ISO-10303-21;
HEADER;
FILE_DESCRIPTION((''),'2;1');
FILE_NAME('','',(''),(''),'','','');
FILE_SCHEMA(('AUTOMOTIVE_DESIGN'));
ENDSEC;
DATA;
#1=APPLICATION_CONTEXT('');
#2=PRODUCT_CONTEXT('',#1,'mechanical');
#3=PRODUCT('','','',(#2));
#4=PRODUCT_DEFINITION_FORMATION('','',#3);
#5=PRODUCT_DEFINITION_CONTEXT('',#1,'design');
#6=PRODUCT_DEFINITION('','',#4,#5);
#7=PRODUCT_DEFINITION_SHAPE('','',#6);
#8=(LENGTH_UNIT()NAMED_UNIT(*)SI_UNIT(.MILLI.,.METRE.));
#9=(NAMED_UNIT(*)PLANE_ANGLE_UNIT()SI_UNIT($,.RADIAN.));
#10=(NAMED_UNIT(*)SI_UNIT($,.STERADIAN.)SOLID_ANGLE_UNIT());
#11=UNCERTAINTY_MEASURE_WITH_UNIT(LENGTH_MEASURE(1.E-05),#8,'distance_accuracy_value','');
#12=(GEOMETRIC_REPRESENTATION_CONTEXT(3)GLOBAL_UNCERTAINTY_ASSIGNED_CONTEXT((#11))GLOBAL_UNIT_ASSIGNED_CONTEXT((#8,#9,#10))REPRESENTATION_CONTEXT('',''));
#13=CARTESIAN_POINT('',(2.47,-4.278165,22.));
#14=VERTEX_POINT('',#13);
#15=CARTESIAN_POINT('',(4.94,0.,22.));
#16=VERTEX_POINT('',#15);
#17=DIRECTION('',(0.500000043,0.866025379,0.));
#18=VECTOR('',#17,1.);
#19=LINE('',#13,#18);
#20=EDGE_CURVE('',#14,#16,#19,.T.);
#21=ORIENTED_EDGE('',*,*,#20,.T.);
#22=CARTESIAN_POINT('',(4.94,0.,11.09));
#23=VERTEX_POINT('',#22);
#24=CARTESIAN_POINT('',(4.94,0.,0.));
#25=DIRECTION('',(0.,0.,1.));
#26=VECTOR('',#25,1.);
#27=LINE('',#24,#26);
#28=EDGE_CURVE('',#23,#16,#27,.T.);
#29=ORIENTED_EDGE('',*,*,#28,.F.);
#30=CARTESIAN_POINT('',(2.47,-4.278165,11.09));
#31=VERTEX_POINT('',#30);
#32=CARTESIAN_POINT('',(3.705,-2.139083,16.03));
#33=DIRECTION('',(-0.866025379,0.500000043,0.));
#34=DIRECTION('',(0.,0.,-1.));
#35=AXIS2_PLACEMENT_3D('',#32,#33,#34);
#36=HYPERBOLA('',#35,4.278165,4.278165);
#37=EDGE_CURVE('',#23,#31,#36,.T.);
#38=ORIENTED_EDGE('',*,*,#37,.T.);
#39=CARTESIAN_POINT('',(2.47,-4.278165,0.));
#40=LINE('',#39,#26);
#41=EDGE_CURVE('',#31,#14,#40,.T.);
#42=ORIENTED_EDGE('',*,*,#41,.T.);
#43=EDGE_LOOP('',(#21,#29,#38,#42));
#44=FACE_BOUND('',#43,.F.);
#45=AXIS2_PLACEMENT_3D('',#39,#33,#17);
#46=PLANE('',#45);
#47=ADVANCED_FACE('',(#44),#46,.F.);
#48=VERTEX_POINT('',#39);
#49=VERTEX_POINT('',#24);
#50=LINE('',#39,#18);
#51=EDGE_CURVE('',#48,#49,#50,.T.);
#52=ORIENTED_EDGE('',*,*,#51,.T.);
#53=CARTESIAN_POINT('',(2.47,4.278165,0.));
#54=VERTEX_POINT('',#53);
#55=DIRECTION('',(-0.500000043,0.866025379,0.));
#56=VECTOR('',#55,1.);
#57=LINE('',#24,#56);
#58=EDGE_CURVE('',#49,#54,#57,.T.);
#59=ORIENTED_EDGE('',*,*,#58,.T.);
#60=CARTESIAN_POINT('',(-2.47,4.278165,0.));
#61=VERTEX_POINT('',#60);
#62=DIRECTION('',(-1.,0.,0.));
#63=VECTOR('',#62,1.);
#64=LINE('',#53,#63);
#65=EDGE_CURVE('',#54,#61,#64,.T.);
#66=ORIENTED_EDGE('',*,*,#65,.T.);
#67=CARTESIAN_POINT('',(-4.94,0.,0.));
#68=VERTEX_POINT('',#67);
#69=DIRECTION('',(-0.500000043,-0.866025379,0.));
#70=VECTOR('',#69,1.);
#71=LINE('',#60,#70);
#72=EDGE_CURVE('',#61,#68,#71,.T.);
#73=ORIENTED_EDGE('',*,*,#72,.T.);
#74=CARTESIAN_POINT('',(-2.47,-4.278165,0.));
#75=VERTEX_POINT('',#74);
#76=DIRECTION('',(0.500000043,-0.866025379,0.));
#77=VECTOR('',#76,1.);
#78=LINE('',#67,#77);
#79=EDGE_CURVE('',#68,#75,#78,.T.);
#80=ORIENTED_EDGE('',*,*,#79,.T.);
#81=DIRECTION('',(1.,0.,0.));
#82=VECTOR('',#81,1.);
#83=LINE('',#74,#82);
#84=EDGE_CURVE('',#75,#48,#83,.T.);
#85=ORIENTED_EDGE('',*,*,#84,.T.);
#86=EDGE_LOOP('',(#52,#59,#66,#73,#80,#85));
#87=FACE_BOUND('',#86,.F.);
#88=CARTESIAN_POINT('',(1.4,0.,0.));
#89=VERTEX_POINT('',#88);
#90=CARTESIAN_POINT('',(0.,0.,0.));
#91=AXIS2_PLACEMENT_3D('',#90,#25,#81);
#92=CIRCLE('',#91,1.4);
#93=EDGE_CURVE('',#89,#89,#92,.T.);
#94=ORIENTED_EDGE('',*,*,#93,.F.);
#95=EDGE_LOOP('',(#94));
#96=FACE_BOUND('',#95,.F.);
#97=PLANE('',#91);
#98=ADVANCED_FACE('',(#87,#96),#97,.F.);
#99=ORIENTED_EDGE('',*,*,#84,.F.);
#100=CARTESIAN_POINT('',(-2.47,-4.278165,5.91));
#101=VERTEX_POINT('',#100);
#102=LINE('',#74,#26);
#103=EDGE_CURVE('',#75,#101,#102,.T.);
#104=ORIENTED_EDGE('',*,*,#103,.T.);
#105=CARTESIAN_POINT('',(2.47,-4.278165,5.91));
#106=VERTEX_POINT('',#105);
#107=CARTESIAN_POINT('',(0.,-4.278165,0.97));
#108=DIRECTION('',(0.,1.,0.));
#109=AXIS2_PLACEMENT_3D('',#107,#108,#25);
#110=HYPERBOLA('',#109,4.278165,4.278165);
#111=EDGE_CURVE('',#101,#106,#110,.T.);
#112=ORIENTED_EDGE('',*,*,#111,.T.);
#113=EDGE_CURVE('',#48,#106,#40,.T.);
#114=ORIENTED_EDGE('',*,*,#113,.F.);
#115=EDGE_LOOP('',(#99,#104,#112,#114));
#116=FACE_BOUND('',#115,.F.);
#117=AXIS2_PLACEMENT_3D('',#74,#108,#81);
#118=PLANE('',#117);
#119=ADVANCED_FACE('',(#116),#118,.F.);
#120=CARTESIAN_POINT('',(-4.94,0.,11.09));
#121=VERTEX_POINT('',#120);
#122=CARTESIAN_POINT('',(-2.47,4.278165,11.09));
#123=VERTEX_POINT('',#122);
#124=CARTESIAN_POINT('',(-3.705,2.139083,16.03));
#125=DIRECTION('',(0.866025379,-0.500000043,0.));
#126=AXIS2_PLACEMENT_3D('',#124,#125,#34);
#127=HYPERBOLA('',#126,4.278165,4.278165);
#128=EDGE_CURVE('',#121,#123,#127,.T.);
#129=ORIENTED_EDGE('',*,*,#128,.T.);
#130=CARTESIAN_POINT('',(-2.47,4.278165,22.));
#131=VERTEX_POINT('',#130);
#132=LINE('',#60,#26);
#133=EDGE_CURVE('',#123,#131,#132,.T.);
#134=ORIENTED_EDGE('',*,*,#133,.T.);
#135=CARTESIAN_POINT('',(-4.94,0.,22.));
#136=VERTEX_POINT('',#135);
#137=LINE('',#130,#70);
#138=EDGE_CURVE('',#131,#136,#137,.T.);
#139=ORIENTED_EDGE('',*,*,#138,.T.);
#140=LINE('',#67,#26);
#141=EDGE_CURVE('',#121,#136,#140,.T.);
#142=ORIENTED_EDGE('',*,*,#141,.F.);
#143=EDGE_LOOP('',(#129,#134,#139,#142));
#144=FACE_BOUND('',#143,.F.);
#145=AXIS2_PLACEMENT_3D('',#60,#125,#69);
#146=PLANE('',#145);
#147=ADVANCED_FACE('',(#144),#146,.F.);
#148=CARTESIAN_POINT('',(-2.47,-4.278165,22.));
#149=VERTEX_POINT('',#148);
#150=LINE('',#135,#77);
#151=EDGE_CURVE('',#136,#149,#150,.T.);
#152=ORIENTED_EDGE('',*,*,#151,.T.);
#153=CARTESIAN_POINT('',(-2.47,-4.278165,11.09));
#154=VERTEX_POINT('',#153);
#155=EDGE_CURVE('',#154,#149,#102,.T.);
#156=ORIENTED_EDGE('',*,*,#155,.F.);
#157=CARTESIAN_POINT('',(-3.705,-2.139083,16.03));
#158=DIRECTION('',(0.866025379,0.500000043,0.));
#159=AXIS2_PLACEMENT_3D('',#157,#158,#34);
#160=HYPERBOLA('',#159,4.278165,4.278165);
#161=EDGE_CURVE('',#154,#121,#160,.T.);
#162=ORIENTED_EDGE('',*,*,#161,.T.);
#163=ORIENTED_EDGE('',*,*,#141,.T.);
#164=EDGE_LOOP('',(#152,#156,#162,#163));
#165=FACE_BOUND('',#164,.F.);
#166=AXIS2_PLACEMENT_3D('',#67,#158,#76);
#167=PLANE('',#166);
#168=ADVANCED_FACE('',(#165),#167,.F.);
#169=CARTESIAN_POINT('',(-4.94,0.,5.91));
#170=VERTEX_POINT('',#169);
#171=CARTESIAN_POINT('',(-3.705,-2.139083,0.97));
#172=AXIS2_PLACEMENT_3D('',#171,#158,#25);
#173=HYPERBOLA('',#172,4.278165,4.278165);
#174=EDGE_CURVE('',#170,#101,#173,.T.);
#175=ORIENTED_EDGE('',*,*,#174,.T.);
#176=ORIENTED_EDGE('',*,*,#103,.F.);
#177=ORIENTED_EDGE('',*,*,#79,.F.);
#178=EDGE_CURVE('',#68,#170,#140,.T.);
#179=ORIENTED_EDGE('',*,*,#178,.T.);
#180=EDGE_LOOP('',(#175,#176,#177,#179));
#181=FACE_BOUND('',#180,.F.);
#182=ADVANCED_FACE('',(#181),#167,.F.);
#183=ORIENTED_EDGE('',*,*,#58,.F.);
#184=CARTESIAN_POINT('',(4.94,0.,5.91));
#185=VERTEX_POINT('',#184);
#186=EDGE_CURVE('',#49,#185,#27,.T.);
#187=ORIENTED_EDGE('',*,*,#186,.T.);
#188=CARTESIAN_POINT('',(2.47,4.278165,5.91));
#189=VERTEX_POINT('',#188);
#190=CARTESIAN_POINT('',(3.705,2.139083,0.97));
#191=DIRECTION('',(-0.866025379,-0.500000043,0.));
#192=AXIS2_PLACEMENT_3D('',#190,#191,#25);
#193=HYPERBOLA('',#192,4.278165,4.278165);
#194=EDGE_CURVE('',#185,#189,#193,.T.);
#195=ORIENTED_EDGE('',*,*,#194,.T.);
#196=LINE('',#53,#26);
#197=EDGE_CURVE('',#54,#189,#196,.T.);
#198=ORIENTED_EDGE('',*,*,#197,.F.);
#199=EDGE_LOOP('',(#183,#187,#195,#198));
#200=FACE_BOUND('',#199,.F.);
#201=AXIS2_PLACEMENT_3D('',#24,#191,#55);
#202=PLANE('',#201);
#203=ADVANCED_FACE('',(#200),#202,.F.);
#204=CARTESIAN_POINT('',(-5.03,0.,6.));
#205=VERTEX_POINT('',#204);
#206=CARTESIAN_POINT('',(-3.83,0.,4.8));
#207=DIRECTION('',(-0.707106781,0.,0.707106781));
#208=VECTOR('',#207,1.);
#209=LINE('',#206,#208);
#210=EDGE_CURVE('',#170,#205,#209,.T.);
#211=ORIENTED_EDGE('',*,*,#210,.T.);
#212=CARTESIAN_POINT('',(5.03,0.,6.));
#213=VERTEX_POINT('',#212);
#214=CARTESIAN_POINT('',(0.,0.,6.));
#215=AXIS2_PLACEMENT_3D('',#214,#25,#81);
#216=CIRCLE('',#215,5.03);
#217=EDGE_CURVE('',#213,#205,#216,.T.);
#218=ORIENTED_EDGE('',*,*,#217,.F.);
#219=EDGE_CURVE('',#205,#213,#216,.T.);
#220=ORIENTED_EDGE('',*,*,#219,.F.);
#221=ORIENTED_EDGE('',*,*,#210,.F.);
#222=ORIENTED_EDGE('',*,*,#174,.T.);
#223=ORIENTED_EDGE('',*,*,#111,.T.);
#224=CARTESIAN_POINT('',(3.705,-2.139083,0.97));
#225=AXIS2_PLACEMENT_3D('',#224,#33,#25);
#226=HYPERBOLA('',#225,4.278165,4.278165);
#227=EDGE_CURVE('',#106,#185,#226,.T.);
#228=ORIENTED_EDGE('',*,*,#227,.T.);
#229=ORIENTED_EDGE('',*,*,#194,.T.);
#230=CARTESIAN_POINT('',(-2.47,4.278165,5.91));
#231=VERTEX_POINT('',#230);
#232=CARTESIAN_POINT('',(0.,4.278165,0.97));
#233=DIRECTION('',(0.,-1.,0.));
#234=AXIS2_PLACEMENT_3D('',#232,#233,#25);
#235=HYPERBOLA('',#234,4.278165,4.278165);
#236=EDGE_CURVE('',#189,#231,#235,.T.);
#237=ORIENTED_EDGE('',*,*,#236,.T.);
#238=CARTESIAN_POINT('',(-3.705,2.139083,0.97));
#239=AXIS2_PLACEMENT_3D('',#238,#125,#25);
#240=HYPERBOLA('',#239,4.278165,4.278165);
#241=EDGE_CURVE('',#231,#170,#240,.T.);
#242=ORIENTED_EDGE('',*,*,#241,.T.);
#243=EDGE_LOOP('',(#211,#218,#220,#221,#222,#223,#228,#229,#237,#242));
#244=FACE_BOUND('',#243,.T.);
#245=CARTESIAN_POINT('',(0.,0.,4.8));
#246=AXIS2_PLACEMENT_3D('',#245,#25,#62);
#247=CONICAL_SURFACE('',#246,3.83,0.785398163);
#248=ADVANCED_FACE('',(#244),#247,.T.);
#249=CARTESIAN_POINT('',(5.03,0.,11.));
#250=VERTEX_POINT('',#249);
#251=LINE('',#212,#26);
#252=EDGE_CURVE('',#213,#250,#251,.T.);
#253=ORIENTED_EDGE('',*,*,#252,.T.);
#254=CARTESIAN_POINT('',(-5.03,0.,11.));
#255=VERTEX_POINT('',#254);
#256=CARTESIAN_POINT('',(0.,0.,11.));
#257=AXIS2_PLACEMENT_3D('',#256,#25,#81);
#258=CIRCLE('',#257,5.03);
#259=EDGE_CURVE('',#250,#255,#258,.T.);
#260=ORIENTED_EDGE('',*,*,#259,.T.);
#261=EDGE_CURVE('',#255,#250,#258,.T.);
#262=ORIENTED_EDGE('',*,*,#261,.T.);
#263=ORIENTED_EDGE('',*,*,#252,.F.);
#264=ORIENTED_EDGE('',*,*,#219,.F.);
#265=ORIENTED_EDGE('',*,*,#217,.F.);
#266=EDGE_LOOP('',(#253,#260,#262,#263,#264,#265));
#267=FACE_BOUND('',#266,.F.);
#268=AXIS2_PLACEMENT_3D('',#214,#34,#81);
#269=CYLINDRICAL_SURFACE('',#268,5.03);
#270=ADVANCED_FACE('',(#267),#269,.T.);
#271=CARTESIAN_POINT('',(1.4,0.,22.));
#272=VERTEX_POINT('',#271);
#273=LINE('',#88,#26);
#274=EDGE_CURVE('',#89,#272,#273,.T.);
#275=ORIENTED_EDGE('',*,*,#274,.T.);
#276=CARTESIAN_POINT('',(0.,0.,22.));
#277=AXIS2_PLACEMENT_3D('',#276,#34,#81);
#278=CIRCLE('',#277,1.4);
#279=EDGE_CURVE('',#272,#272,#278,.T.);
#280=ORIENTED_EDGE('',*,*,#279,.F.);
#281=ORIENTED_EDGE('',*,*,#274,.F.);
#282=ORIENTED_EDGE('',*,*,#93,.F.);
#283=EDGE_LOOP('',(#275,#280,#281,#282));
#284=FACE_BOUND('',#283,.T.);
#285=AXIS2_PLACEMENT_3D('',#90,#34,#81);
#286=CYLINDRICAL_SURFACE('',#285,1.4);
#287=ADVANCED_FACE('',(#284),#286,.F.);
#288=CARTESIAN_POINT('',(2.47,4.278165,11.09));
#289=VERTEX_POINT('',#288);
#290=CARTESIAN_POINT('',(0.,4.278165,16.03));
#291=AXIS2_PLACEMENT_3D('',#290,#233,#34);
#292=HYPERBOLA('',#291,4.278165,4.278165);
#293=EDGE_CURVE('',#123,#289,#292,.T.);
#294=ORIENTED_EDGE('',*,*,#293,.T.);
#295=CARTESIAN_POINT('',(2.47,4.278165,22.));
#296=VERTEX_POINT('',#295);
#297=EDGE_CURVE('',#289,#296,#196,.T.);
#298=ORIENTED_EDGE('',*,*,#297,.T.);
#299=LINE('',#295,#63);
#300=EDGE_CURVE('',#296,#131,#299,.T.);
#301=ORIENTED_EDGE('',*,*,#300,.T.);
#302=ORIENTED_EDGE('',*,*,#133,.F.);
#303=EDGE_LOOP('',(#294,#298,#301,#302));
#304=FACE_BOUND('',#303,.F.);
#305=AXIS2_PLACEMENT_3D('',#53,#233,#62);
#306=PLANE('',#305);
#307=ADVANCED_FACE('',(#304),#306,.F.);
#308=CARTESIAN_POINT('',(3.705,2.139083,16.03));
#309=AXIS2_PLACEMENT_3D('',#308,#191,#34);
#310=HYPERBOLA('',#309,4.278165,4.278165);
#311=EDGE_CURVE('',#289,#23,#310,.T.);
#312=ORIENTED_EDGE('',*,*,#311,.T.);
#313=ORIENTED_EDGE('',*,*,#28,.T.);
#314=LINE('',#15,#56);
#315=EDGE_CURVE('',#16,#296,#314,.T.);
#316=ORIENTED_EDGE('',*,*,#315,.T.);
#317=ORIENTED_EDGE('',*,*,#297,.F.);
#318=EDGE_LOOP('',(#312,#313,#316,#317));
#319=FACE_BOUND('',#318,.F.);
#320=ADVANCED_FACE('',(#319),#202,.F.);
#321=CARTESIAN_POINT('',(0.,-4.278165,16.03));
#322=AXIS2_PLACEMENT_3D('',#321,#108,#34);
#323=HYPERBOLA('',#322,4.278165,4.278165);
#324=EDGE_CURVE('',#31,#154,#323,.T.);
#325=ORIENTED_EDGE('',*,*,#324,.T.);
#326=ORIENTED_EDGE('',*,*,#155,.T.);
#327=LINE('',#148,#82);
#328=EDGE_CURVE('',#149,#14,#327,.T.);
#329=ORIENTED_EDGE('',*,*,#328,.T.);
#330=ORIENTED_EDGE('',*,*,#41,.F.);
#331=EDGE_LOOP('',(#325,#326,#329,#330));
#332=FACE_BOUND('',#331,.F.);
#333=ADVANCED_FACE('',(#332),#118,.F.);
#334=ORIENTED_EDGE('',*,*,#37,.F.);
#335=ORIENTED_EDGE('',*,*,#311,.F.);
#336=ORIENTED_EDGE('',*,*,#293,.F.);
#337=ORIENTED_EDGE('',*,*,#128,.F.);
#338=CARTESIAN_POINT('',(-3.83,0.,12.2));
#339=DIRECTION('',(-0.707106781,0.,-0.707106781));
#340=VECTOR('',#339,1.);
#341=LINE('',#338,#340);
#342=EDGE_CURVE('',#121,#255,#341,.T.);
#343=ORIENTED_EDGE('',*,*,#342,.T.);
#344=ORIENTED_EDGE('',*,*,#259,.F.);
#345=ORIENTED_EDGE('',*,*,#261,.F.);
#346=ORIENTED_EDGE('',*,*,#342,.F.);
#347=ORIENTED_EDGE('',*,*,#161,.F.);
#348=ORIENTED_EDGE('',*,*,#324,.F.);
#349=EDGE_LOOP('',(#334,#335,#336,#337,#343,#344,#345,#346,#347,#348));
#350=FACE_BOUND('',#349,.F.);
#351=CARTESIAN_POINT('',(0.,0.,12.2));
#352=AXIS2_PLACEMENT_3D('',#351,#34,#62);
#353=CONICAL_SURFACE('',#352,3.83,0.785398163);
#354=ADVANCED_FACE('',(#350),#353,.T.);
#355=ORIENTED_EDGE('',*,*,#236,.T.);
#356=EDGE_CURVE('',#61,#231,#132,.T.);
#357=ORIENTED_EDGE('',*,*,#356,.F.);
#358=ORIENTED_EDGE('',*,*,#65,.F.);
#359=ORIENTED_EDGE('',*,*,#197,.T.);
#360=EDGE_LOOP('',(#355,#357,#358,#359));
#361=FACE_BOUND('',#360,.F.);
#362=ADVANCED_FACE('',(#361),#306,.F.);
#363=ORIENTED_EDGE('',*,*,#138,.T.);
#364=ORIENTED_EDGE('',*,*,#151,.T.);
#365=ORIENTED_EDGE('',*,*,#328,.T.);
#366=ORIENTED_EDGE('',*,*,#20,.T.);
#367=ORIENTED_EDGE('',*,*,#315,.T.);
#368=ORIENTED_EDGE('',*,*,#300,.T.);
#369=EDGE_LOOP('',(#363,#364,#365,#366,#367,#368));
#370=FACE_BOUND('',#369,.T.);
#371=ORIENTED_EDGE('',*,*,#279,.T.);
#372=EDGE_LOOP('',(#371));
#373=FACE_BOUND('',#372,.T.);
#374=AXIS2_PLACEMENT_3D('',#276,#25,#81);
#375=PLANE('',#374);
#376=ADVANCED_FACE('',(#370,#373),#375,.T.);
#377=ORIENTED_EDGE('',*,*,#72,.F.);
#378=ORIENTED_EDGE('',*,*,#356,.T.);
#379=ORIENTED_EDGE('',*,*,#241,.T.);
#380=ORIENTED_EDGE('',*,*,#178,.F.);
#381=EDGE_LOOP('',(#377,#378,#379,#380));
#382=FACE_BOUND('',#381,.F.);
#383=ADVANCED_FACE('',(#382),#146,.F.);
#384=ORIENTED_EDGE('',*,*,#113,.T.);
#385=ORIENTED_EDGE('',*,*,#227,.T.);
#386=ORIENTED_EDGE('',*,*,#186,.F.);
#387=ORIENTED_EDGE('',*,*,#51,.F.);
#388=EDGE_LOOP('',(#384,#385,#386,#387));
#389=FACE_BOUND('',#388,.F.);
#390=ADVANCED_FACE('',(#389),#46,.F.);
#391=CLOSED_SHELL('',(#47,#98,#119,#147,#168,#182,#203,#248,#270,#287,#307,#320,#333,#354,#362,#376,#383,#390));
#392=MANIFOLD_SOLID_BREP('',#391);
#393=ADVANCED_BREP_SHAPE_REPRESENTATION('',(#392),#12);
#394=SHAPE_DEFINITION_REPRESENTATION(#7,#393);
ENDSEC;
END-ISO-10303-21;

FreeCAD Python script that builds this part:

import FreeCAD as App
import Part
import Sketcher
from FreeCAD import Vector
Q = App.Units.Quantity

doc = App.newDocument("Part")
body = doc.addObject("PartDesign::Body", "Body")

# Sketch on XY plane
sketch1 = body.newObject("Sketcher::SketchObject", "Sketch")
sketch1.AttachmentSupport = (doc.getObject("XY_Plane"), [""])
sketch1.MapMode = "FlatFace"
sketch1.AttachmentOffset = App.Placement(Vector(0, 0, 6), App.Rotation())
sketch1.addGeometry(Part.Circle(Vector(0, 0, 0), Vector(0, 0, 1), 5.03), False)
sketch1.addConstraint([
    Sketcher.Constraint("Coincident", 0, 3, -1, 1),
    Sketcher.Constraint("Diameter", 0, Q("10.06 mm")),
])
pad1 = body.newObject("PartDesign::Pad", "Pad")
pad1.Profile = sketch1
pad1.Length = 5

# Sketch on XY plane
sketch2 = body.newObject("Sketcher::SketchObject", "Sketch001")
sketch2.AttachmentSupport = (doc.getObject("XY_Plane"), [""])
sketch2.MapMode = "FlatFace"
sketch2.addGeometry([
    Part.LineSegment(Vector(2.47, -4.278165, 0), Vector(4.94, 0, 0)),  # 0
    Part.LineSegment(Vector(4.94, 0, 0), Vector(2.47, 4.278165, 0)),  # 1
    Part.LineSegment(Vector(2.47, 4.278165, 0), Vector(-2.47, 4.278165, 0)),  # 2
    Part.LineSegment(Vector(-2.47, 4.278165, 0), Vector(-4.94, 0, 0)),  # 3
    Part.LineSegment(Vector(-4.94, 0, 0), Vector(-2.47, -4.278165, 0)),  # 4
    Part.LineSegment(Vector(-2.47, -4.278165, 0), Vector(2.47, -4.278165, 0)),  # 5
], False)
sketch2.addConstraint([
    Sketcher.Constraint("Coincident", 0, 2, 1, 1),
    Sketcher.Constraint("Coincident", 1, 2, 2, 1),
    Sketcher.Constraint("Coincident", 2, 2, 3, 1),
    Sketcher.Constraint("Coincident", 3, 2, 4, 1),
    Sketcher.Constraint("Coincident", 4, 2, 5, 1),
    Sketcher.Constraint("Coincident", 5, 2, 0, 1),
    Sketcher.Constraint("Horizontal", 2),
    Sketcher.Constraint("Horizontal", 5),
    Sketcher.Constraint("Symmetric", 0, 2, 3, 2, -1, 1),
    Sketcher.Constraint("Symmetric", 1, 2, 4, 2, -1, 1),
    Sketcher.Constraint("PointOnObject", 0, 2, -1),
    Sketcher.Constraint("Parallel", 0, 3),
    Sketcher.Constraint("Vertical", 2, 2, 4, 2),
    Sketcher.Constraint("Angle", 0, Q("59.999997 deg")),
    Sketcher.Constraint("DistanceX", 2, 2, 2, 1, Q("4.94 mm")),
    Sketcher.Constraint("Distance", 0, Q("4.94 mm")),
])
pad2 = body.newObject("PartDesign::Pad", "Pad001")
pad2.Profile = sketch2
pad2.Length = 22

# Sketch on XZ plane
sketch3 = body.newObject("Sketcher::SketchObject", "Sketch002")
sketch3.AttachmentSupport = (doc.getObject("XZ_Plane"), [""])
sketch3.MapMode = "FlatFace"
sketch3.addGeometry([
    Part.LineSegment(Vector(-5.03, 11, 0), Vector(-3.83, 11, 0)),  # 0
    Part.LineSegment(Vector(-3.83, 11, 0), Vector(-3.83, 12.2, 0)),  # 1
    Part.LineSegment(Vector(-3.83, 12.2, 0), Vector(-5.03, 11, 0)),  # 2
    Part.LineSegment(Vector(-3.83, 6, 0), Vector(-5.03, 6, 0)),  # 3
    Part.LineSegment(Vector(-5.03, 6, 0), Vector(-3.83, 4.8, 0)),  # 4
    Part.LineSegment(Vector(-3.83, 4.8, 0), Vector(-3.83, 6, 0)),  # 5
], False)
sketch3.addConstraint([
    Sketcher.Constraint("Coincident", 0, 2, 1, 1),
    Sketcher.Constraint("Coincident", 1, 2, 2, 1),
    Sketcher.Constraint("Coincident", 2, 2, 0, 1),
    Sketcher.Constraint("Coincident", 3, 2, 4, 1),
    Sketcher.Constraint("Coincident", 4, 2, 5, 1),
    Sketcher.Constraint("Coincident", 5, 2, 3, 1),
    Sketcher.Constraint("Horizontal", 0),
    Sketcher.Constraint("Vertical", 1),
    Sketcher.Constraint("Horizontal", 3),
    Sketcher.Constraint("Vertical", 5),
    Sketcher.Constraint("Perpendicular", 2, 4),
    Sketcher.Constraint("Vertical", 2, 2, 3, 2),
    Sketcher.Constraint("Vertical", 1, 2, 4, 2),
    Sketcher.Constraint("Equal", 3, 1),
    Sketcher.Constraint("DistanceX", 0, 1, 0, 2, Q("1.2 mm")),
    Sketcher.Constraint("DistanceY", -1, 1, 0, 2, Q("11 mm")),
    Sketcher.Constraint("DistanceY", -1, 1, 3, 2, Q("6 mm")),
    Sketcher.Constraint("DistanceX", 0, 2, -1, 1, Q("3.83 mm")),
])
revolution = body.newObject("PartDesign::Revolution", "Revolution")
revolution.Profile = sketch3
revolution.ReferenceAxis = (sketch3, ["V_Axis"])
revolution.Angle = 360

# Sketch on XY plane
sketch4 = body.newObject("Sketcher::SketchObject", "Sketch003")
sketch4.AttachmentSupport = (doc.getObject("XY_Plane"), [""])
sketch4.MapMode = "FlatFace"
sketch4.addGeometry(Part.Circle(Vector(0, 0, 0), Vector(0, 0, 1), 1.4), False)
sketch4.addConstraint([
    Sketcher.Constraint("Coincident", 0, 3, -1, 1),
    Sketcher.Constraint("Diameter", 0, Q("2.8 mm")),
])
pocket1 = body.newObject("PartDesign::Pocket", "Pocket")
pocket1.Profile = sketch4
pocket1.Type = "ThroughAll"
pocket1.Midplane = True

doc.recompute()
